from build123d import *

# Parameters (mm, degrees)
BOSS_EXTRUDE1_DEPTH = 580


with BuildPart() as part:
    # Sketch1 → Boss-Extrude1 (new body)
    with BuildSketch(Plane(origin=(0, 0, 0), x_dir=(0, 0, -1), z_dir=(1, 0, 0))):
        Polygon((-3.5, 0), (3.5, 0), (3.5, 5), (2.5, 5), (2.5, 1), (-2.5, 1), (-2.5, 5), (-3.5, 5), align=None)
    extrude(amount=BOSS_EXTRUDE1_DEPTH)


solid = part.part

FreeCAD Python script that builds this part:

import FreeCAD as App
import Part
import Sketcher

V = App.Vector

doc = App.newDocument("Part")
body = doc.addObject("PartDesign::Body", "Body")

# Sketch on YZ plane
sketch1 = body.newObject("Sketcher::SketchObject", "Sketch")
sketch1.AttachmentSupport = (doc.getObject("YZ_Plane"), [""])
sketch1.MapMode = "FlatFace"
sketch1.addGeometry([
    Part.LineSegment(V(0, 3.5, 0), V(0, -3.5, 0)),  # 0
    Part.LineSegment(V(0, -3.5, 0), V(5, -3.5, 0)),  # 1
    Part.LineSegment(V(5, -3.5, 0), V(5, -2.5, 0)),  # 2
    Part.LineSegment(V(5, -2.5, 0), V(1, -2.5, 0)),  # 3
    Part.LineSegment(V(1, -2.5, 0), V(1, 2.5, 0)),  # 4
    Part.LineSegment(V(1, 2.5, 0), V(5, 2.5, 0)),  # 5
    Part.LineSegment(V(5, 2.5, 0), V(5, 3.5, 0)),  # 6
    Part.LineSegment(V(5, 3.5, 0), V(0, 3.5, 0)),  # 7
], False)
sketch1.addConstraint([
    Sketcher.Constraint("Coincident", 0, 2, 1, 1),
    Sketcher.Constraint("Coincident", 1, 2, 2, 1),
    Sketcher.Constraint("Coincident", 2, 2, 3, 1),
    Sketcher.Constraint("Coincident", 3, 2, 4, 1),
    Sketcher.Constraint("Coincident", 4, 2, 5, 1),
    Sketcher.Constraint("Coincident", 5, 2, 6, 1),
    Sketcher.Constraint("Coincident", 6, 2, 7, 1),
    Sketcher.Constraint("Coincident", 7, 2, 0, 1),
    Sketcher.Constraint("Vertical", 0),
    Sketcher.Constraint("Horizontal", 1),
    Sketcher.Constraint("Vertical", 2),
    Sketcher.Constraint("Horizontal", 3),
    Sketcher.Constraint("Vertical", 4),
    Sketcher.Constraint("Horizontal", 5),
    Sketcher.Constraint("Vertical", 6),
    Sketcher.Constraint("Horizontal", 7),
    Sketcher.Constraint("Symmetric", 0, 2, 7, 2, -1, 1),
    Sketcher.Constraint("Symmetric", 2, 2, 5, 2, -1),
    Sketcher.Constraint("Equal", 7, 4),
    Sketcher.Constraint("DistanceX", 1, 1, 1, 2, 5.0),
    Sketcher.Constraint("DistanceX", 3, 2, 3, 1, 4.0),
    Sketcher.Constraint("DistanceY", 0, 2, 0, 1, 7.0),
])
pad1 = body.newObject("PartDesign::Pad", "Pad")
pad1.Profile = sketch1
pad1.Length = 580

doc.recompute()
